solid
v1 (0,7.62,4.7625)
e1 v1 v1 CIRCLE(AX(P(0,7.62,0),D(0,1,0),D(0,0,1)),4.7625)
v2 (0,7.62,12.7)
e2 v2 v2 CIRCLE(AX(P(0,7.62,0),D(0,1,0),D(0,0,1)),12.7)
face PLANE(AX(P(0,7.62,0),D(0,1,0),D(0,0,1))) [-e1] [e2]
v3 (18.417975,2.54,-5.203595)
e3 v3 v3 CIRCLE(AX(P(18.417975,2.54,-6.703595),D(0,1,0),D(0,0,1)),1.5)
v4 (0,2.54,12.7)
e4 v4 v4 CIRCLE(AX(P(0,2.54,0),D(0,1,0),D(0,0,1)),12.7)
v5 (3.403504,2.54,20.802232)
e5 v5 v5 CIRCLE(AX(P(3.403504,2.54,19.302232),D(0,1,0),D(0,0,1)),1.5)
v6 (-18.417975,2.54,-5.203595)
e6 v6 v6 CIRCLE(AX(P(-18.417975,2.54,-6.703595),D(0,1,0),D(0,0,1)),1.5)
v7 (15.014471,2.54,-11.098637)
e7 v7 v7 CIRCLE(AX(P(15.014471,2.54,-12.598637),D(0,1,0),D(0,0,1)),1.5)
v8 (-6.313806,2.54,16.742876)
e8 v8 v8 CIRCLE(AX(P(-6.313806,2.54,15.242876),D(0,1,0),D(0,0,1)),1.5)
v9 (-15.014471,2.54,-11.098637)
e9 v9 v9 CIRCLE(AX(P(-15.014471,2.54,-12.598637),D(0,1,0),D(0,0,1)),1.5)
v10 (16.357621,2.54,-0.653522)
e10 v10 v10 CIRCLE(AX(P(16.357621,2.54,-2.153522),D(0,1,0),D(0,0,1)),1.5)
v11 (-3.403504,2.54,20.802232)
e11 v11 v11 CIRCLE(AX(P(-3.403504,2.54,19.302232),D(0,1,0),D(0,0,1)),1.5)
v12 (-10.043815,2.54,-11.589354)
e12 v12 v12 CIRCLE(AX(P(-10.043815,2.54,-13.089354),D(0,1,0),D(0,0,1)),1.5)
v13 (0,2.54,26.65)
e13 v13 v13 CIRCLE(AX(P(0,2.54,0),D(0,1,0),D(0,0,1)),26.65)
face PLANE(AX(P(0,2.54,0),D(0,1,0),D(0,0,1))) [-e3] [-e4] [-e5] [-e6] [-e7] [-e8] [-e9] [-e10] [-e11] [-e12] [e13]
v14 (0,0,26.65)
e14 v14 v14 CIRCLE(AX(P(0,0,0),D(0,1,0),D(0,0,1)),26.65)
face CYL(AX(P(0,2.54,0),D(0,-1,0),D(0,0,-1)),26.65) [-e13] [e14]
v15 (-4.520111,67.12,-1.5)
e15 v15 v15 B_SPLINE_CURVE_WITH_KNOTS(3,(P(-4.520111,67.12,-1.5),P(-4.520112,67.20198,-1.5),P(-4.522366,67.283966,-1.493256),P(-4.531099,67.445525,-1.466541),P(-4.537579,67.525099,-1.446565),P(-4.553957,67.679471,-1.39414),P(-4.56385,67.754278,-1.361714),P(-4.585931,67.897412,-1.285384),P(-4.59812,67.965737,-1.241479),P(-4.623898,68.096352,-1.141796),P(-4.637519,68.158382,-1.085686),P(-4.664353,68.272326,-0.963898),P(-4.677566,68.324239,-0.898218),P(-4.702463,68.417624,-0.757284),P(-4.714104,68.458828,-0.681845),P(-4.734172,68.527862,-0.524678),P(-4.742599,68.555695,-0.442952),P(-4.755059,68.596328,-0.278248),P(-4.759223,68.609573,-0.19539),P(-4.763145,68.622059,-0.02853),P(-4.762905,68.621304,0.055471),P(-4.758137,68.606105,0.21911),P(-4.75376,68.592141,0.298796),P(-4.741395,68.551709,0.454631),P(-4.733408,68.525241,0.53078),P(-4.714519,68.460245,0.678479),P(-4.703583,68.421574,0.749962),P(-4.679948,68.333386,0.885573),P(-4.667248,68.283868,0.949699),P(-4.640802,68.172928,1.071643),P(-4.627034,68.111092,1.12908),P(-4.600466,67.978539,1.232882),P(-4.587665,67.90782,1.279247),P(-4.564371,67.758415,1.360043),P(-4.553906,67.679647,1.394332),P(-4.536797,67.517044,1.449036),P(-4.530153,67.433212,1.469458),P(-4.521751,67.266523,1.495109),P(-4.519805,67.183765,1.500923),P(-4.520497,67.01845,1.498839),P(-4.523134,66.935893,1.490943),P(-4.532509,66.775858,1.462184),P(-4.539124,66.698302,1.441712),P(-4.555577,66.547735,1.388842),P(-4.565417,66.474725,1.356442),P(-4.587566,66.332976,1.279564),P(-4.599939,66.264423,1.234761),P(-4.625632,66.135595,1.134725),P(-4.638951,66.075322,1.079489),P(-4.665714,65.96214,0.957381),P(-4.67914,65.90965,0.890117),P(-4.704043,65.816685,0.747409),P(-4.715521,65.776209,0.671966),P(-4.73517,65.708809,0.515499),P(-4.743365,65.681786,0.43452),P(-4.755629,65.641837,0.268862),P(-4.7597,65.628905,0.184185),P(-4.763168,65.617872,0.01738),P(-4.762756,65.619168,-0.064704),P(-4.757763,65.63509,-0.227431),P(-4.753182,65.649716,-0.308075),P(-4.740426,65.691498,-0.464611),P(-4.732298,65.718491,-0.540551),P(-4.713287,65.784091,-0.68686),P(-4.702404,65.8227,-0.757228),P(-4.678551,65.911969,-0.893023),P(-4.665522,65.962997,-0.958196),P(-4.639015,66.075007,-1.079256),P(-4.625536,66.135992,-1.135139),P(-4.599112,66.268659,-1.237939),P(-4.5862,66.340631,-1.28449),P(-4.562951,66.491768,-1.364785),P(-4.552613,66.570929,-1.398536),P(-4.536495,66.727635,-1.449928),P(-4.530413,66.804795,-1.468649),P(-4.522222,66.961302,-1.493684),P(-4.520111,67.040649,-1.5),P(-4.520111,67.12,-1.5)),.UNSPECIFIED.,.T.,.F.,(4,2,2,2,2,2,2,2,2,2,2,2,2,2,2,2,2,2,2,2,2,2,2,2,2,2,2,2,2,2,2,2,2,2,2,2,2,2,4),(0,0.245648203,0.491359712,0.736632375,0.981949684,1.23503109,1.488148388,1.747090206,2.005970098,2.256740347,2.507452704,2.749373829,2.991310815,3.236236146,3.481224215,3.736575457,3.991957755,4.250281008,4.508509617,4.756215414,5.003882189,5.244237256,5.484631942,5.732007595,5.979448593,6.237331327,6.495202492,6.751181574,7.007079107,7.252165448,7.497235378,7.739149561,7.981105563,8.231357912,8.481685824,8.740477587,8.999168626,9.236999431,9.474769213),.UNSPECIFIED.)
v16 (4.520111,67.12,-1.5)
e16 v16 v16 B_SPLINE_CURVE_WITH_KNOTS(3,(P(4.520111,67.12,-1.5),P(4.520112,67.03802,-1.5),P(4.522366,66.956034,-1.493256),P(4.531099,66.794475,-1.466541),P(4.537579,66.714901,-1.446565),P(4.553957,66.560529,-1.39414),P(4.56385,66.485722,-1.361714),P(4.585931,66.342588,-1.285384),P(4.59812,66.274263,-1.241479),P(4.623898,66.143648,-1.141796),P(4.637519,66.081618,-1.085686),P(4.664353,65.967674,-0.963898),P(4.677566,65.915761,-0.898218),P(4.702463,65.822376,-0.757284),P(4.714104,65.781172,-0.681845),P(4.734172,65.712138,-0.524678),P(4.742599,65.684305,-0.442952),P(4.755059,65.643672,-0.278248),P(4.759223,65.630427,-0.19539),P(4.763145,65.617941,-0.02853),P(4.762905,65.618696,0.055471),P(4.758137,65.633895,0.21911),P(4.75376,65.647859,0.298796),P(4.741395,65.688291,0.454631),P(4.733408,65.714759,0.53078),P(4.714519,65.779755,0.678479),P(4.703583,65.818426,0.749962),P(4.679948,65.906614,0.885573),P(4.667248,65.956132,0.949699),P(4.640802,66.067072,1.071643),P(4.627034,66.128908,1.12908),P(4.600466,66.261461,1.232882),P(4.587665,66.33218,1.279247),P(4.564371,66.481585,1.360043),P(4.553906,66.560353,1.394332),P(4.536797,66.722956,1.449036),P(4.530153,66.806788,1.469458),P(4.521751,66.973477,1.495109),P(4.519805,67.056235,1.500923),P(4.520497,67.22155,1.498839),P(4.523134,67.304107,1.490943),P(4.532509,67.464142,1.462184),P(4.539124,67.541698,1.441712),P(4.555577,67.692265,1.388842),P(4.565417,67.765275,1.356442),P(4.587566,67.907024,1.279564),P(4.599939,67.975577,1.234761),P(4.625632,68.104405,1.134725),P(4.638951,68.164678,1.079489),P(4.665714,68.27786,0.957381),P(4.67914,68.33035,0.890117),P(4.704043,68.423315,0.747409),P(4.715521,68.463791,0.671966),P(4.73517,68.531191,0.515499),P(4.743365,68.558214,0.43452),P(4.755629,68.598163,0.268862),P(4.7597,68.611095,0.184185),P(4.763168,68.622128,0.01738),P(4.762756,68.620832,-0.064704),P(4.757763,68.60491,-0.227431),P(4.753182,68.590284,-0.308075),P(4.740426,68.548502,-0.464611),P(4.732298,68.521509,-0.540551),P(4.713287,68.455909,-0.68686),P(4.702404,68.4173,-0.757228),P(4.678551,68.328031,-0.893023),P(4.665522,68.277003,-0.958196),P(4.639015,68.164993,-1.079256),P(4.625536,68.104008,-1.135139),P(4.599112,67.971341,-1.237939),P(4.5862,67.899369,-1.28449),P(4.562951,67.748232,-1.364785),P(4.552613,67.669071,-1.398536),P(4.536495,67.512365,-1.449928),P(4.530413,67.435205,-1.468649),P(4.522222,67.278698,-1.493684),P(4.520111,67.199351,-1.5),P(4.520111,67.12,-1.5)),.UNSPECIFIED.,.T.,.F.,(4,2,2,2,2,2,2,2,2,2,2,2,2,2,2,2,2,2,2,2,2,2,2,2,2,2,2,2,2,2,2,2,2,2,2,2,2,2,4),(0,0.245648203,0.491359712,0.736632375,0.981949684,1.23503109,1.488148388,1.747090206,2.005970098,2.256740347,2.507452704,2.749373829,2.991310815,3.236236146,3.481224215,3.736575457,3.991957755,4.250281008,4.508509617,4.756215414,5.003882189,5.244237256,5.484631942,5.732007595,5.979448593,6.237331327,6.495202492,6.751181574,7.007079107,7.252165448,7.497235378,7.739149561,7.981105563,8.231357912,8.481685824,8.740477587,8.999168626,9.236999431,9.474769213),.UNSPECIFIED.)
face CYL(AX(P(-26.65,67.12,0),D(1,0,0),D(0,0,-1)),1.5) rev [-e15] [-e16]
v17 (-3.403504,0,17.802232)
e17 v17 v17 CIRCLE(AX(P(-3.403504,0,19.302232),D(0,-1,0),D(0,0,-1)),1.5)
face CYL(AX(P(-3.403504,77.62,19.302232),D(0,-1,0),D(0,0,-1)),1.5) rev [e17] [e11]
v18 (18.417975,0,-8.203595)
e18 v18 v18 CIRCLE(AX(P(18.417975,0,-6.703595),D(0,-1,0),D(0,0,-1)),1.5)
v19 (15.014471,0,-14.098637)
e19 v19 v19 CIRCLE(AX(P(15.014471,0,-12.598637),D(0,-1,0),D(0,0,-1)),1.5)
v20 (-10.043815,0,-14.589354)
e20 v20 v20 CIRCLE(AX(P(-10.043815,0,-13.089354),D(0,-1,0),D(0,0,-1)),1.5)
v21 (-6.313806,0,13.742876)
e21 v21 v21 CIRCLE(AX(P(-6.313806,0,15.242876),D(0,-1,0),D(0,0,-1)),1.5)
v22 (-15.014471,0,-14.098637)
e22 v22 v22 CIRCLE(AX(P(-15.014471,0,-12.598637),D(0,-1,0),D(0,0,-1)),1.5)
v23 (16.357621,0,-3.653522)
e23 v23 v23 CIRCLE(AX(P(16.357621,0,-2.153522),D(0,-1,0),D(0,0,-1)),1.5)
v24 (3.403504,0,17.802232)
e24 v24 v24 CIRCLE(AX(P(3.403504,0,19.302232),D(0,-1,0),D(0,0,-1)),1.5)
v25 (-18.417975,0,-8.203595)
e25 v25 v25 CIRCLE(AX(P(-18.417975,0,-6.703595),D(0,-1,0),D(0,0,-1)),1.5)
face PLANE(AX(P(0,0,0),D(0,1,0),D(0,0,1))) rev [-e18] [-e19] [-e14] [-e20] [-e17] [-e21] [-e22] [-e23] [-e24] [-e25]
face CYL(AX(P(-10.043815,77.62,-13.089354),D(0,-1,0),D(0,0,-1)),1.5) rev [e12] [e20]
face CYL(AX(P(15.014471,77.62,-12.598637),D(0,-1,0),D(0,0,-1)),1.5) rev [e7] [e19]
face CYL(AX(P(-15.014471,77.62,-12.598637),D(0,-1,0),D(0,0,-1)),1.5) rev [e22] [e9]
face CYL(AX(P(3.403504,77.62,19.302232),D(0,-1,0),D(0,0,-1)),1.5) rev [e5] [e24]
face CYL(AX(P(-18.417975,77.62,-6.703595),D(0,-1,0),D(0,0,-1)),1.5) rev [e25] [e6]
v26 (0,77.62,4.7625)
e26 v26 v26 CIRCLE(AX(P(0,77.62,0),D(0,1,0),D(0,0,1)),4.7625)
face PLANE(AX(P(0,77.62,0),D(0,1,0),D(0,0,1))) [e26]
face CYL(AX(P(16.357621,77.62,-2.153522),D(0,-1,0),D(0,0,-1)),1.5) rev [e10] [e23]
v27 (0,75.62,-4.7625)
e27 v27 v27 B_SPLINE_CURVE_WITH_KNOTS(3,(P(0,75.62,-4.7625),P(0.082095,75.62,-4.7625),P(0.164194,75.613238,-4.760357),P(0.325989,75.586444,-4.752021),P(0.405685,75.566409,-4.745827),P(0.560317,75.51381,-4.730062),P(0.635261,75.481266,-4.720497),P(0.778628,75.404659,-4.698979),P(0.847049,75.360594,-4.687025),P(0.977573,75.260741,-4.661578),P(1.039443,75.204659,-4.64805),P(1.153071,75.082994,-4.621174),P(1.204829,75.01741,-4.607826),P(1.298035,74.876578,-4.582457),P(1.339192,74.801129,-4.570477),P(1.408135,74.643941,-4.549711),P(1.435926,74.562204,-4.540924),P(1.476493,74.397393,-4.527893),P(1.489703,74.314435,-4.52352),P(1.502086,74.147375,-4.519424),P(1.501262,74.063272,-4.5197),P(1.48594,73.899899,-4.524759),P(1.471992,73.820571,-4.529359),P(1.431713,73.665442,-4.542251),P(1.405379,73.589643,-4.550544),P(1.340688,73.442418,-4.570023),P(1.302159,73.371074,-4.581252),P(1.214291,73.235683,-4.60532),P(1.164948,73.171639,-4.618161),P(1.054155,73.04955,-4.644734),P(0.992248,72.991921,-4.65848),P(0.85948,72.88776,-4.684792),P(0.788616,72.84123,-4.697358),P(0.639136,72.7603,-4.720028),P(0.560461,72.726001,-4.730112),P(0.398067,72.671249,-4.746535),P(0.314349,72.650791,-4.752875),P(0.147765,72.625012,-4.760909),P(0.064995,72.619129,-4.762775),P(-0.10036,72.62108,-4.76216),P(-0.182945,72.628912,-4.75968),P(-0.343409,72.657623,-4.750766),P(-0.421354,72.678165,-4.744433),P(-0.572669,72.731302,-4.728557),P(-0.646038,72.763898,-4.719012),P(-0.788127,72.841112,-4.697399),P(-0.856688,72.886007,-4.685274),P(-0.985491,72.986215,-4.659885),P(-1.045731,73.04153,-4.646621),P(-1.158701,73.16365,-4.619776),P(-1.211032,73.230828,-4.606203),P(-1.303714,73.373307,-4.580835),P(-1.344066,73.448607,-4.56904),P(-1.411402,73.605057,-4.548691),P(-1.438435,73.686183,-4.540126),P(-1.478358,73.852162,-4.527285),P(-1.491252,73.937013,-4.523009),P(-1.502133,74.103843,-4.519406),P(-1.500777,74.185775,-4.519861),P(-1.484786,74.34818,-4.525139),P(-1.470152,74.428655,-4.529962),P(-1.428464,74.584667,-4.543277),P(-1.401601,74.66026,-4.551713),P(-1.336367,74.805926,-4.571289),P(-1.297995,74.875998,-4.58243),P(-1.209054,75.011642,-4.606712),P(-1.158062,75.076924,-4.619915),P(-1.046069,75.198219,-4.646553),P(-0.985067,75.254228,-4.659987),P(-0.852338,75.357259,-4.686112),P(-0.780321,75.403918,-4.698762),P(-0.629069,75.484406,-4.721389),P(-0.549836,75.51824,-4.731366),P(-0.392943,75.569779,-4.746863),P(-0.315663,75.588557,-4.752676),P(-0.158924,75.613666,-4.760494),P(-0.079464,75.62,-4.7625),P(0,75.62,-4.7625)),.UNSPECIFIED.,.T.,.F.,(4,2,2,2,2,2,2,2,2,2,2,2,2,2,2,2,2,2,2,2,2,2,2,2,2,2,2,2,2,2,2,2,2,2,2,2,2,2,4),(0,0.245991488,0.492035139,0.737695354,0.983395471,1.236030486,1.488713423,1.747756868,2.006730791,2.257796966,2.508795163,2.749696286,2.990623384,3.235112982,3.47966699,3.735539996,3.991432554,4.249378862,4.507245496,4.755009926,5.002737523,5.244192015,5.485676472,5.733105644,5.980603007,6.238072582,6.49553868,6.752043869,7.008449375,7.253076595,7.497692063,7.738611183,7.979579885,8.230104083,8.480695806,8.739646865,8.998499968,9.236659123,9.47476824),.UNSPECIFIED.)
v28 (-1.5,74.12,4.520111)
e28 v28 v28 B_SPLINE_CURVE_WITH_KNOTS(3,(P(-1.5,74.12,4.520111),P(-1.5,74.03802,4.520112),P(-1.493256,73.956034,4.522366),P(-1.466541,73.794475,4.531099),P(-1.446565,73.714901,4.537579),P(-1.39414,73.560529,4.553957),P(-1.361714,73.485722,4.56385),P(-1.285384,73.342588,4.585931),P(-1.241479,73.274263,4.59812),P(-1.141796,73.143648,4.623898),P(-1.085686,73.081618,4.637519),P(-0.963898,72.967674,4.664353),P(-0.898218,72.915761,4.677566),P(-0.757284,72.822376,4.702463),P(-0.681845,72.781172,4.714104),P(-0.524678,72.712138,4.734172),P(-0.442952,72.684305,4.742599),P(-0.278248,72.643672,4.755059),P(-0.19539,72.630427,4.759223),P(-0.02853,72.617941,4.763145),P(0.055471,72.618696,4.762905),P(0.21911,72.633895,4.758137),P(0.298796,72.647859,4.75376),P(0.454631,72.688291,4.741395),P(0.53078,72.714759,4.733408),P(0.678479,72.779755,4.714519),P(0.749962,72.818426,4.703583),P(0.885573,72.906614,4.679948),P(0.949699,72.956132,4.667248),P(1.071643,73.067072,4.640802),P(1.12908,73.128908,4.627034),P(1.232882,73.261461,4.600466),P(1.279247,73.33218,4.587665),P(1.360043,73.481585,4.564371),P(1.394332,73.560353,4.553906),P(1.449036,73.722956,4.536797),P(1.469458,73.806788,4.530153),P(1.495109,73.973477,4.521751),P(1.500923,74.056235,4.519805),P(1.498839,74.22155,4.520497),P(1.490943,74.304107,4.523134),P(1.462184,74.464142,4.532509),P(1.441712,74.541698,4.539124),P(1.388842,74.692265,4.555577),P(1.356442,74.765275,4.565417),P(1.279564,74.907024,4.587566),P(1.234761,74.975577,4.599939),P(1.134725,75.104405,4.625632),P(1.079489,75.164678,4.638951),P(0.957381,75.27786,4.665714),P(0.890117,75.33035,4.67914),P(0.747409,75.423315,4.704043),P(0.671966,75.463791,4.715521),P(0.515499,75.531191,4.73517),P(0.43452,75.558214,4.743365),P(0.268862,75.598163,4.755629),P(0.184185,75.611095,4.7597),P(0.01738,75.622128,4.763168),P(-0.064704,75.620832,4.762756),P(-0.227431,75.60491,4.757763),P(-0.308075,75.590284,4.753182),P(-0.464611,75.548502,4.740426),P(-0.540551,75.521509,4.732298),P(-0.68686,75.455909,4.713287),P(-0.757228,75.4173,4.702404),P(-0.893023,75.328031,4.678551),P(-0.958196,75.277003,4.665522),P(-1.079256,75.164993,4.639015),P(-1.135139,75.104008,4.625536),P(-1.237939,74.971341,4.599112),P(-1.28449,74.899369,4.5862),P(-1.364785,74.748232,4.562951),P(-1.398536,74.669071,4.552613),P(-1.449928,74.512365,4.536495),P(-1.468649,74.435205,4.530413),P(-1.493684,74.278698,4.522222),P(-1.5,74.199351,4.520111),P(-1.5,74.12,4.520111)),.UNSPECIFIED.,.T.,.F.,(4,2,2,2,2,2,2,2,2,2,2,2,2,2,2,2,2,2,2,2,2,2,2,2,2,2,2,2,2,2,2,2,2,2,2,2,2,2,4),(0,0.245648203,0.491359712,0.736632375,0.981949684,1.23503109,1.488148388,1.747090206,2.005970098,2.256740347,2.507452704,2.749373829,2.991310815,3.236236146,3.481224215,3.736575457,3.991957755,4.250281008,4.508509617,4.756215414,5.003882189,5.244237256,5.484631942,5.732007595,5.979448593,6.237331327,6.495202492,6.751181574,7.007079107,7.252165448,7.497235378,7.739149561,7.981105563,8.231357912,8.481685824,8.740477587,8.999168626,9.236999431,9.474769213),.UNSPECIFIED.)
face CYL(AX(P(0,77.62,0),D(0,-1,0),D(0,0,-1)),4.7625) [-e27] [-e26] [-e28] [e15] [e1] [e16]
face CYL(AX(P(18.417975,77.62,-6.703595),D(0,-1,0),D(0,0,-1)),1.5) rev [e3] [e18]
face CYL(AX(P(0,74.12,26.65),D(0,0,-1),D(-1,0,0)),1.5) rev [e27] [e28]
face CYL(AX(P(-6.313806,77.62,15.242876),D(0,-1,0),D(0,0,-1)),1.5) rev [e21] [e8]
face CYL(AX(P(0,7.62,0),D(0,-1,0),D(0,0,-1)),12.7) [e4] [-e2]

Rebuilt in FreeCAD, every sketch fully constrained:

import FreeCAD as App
import Part
import Sketcher
from FreeCAD import Vector
Q = App.Units.Quantity

doc = App.newDocument("Part")
body = doc.addObject("PartDesign::Body", "Body")

# Sketch on XZ plane
sketch1 = body.newObject("Sketcher::SketchObject", "Sketch")
sketch1.AttachmentSupport = (doc.getObject("XZ_Plane"), [""])
sketch1.MapMode = "FlatFace"
sketch1.addGeometry(Part.Circle(Vector(0, 0, 0), Vector(0, 0, 1), 27), False)
sketch1.addConstraint(Sketcher.Constraint("Coincident", 0, 3, -1, 1))
sketch1.addConstraint(Sketcher.Constraint("Diameter", 0, 53.3))
pad1 = body.newObject("PartDesign::Pad", "Pad")
pad1.Profile = sketch1
pad1.Length = Q("0.1 in")
pad1.Reversed = True

# Sketch on XZ plane
sketch2 = body.newObject("Sketcher::SketchObject", "Sketch001")
sketch2.AttachmentSupport = (doc.getObject("XZ_Plane"), [""])
sketch2.MapMode = "FlatFace"
sketch2.AttachmentOffset = App.Placement(Vector(0, 0, -0.1 * 25.4), App.Rotation())
sketch2.addGeometry(Part.Circle(Vector(0, 0, 0), Vector(0, 0, 1), 13), False)
sketch2.addConstraint(Sketcher.Constraint("Coincident", 0, 3, -1, 1))
sketch2.addConstraint(Sketcher.Constraint("Diameter", 0, Q("1 in")))
pad2 = body.newObject("PartDesign::Pad", "Pad001")
pad2.Profile = sketch2
pad2.Length = Q("0.2 in")
pad2.Reversed = True

# Sketch on XZ plane
sketch3 = body.newObject("Sketcher::SketchObject", "Sketch002")
sketch3.AttachmentSupport = (doc.getObject("XZ_Plane"), [""])
sketch3.MapMode = "FlatFace"
sketch3.AttachmentOffset = App.Placement(Vector(0, 0, -0.3 * 25.4), App.Rotation())
sketch3.addGeometry(Part.Circle(Vector(0, 0, 0), Vector(0, 0, 1), 4.8), False)
sketch3.addConstraint(Sketcher.Constraint("Coincident", 0, 3, -1, 1))
sketch3.addConstraint(Sketcher.Constraint("Diameter", 0, Q("0.375 in")))
pad3 = body.newObject("PartDesign::Pad", "Pad002")
pad3.Profile = sketch3
pad3.Length = 70
pad3.Reversed = True

# Sketch on XZ plane
sketch4 = body.newObject("Sketcher::SketchObject", "Sketch003")
sketch4.AttachmentSupport = (doc.getObject("XZ_Plane"), [""])
sketch4.MapMode = "FlatFace"
sketch4.addGeometry(Part.Circle(Vector(-6.3, 15.2, 0), Vector(0, 0, 1), 1.5), False)
sketch4.addGeometry(Part.Circle(Vector(16.4, -2.2, 0), Vector(0, 0, 1), 1.5), False)
sketch4.addGeometry(Part.Circle(Vector(-10, -13.1, 0), Vector(0, 0, 1), 1.5), False)
sketch4.addGeometry(Part.Circle(Vector(3.4, 19.3, 0), Vector(0, 0, 1), 1.5), False)
sketch4.addGeometry(Part.Circle(Vector(18.4, -6.7, 0), Vector(0, 0, 1), 1.5), False)
sketch4.addGeometry(Part.Circle(Vector(15, -12.6, 0), Vector(0, 0, 1), 1.5), False)
sketch4.addGeometry(Part.Circle(Vector(-15, -12.6, 0), Vector(0, 0, 1), 1.5), False)
sketch4.addGeometry(Part.Circle(Vector(-18.4, -6.7, 0), Vector(0, 0, 1), 1.5), False)
sketch4.addGeometry(Part.Circle(Vector(-3.4, 19.3, 0), Vector(0, 0, 1), 1.5), False)
sketch4.addConstraint(Sketcher.Constraint("Equal", 0, 1))
sketch4.addConstraint(Sketcher.Constraint("Equal", 1, 2))
sketch4.addConstraint(Sketcher.Constraint("Equal", 2, 3))
sketch4.addConstraint(Sketcher.Constraint("Equal", 3, 4))
sketch4.addConstraint(Sketcher.Constraint("Equal", 4, 5))
sketch4.addConstraint(Sketcher.Constraint("Equal", 5, 6))
sketch4.addConstraint(Sketcher.Constraint("Equal", 6, 7))
sketch4.addConstraint(Sketcher.Constraint("Equal", 7, 8))
sketch4.addConstraint(Sketcher.Constraint("Symmetric", 5, 3, 6, 3, -2))
sketch4.addConstraint(Sketcher.Constraint("Symmetric", 4, 3, 7, 3, -2))
sketch4.addConstraint(Sketcher.Constraint("Symmetric", 3, 3, 8, 3, -2))
sketch4.addConstraint(Sketcher.Constraint("Diameter", 0, 3.0))
sketch4.addConstraint(Sketcher.Constraint("DistanceX", 0, 3, 8, 3, 2.910302))
sketch4.addConstraint(Sketcher.Constraint("DistanceX", -1, 1, 1, 3, 16.357621))
sketch4.addConstraint(Sketcher.Constraint("DistanceY", 1, 3, -1, 1, 2.153522))
sketch4.addConstraint(Sketcher.Constraint("DistanceY", -1, 1, 3, 3, 19.302232))
sketch4.addConstraint(Sketcher.Constraint("DistanceX", -1, 1, 5, 3, 15.014471))
sketch4.addConstraint(Sketcher.Constraint("DistanceX", 2, 3, 0, 3, 3.730009))
sketch4.addConstraint(Sketcher.Constraint("DistanceY", 2, 3, 0, 3, 28.33223))
sketch4.addConstraint(Sketcher.Constraint("DistanceX", 0, 3, 3, 3, 9.71731))
sketch4.addConstraint(Sketcher.Constraint("DistanceX", 2, 3, 4, 3, 28.46179))
sketch4.addConstraint(Sketcher.Constraint("DistanceY", 2, 3, 4, 3, 6.385759))
sketch4.addConstraint(Sketcher.Constraint("DistanceY", 5, 3, 3, 3, 31.900869))
sketch4.addConstraint(Sketcher.Constraint("DistanceY", -1, 1, 0, 3, 15.242876))
pocket1 = body.newObject("PartDesign::Pocket", "Pocket")
pocket1.Profile = sketch4
pocket1.Type = "ThroughAll"

# Sketch on XY plane
sketch5 = body.newObject("Sketcher::SketchObject", "Sketch004")
sketch5.AttachmentSupport = (doc.getObject("XY_Plane"), [""])
sketch5.MapMode = "FlatFace"
sketch5.addGeometry(Part.Circle(Vector(0, 74.1, 0), Vector(0, 0, 1), 1.5), False)
sketch5.addConstraint(Sketcher.Constraint("PointOnObject", 0, 3, -2))
sketch5.addConstraint(Sketcher.Constraint("Diameter", 0, 3.0))
sketch5.addConstraint(Sketcher.Constraint("DistanceY", -1, 1, 0, 3, 74.12))
pocket2 = body.newObject("PartDesign::Pocket", "Pocket001")
pocket2.Profile = sketch5
pocket2.Type = "ThroughAll"
pocket2.Midplane = True

# Sketch on YZ plane
sketch6 = body.newObject("Sketcher::SketchObject", "Sketch005")
sketch6.AttachmentSupport = (doc.getObject("YZ_Plane"), [""])
sketch6.MapMode = "FlatFace"
sketch6.addGeometry(Part.Circle(Vector(67.1, 0, 0), Vector(0, 0, 1), 1.5), False)
sketch6.addConstraint(Sketcher.Constraint("PointOnObject", 0, 3, -1))
sketch6.addConstraint(Sketcher.Constraint("Diameter", 0, 3.0))
sketch6.addConstraint(Sketcher.Constraint("DistanceX", -1, 1, 0, 3, 67.12))
pocket3 = body.newObject("PartDesign::Pocket", "Pocket002")
pocket3.Profile = sketch6
pocket3.Type = "ThroughAll"
pocket3.Midplane = True

doc.recompute()
